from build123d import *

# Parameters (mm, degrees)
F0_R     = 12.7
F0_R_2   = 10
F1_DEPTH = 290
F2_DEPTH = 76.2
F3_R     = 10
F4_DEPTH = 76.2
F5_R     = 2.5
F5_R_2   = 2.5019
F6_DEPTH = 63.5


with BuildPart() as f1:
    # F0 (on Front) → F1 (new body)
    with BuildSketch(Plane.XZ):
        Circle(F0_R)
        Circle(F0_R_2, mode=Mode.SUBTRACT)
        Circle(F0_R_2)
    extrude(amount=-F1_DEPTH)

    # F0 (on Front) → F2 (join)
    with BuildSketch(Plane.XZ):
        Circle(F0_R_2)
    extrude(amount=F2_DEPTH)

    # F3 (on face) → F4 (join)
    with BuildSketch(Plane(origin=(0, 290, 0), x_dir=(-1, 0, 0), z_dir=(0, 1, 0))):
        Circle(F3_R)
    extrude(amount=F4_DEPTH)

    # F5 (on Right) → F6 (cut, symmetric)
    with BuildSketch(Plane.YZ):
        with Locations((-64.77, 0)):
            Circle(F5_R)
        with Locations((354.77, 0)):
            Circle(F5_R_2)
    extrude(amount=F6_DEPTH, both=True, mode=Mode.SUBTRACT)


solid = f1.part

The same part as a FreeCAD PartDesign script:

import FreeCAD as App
import Part
import Sketcher
Q = App.Units.Quantity

doc = App.newDocument("Part")
params = doc.addObject("Spreadsheet::Sheet", "Params")
for row, (alias, value) in enumerate([
    ("sketch1_diameter", "1 in"),
    ("pad1_length", "290 mm"),
    ("pad2_length", "3 in"),
    ("pad3_length", "3 in"),
    ("sketch4_diameter", "0.197 in"),
    ("pocket1_length", "5 in"),
], start=1):
    params.set(f"A{row}", alias)
    params.set(f"B{row}", "=" + value)
    params.setAlias(f"B{row}", alias)

body = doc.addObject("PartDesign::Body", "Body")

sketch1 = body.newObject("Sketcher::SketchObject", "Sketch")
sketch1.AttachmentSupport = (doc.getObject("XZ_Plane"), [""])
sketch1.MapMode = "FlatFace"
sketch1.addGeometry(Part.Circle(App.Vector(0, 0, 0), App.Vector(0, 0, 1), 13), False)
sketch1.addConstraint([
    Sketcher.Constraint("Coincident", 0, 3, -1, 1),
    Sketcher.Constraint("Diameter", 0, Q("1 in")),
])
sketch1.setExpression("Constraints[1]", "Params.sketch1_diameter")
pad1 = body.newObject("PartDesign::Pad", "Pad")
pad1.Profile = sketch1
pad1.setExpression("Length", "Params.pad1_length")
pad1.Reversed = True

sketch2 = body.newObject("Sketcher::SketchObject", "Sketch001")
sketch2.AttachmentSupport = (doc.getObject("XZ_Plane"), [""])
sketch2.MapMode = "FlatFace"
sketch2.addGeometry(Part.Circle(App.Vector(0, 0, 0), App.Vector(0, 0, 1), 10), False)
sketch2.addConstraint([
    Sketcher.Constraint("Coincident", 0, 3, -1, 1),
    Sketcher.Constraint("Diameter", 0, 20.0),
])
pad2 = body.newObject("PartDesign::Pad", "Pad001")
pad2.Profile = sketch2
pad2.setExpression("Length", "Params.pad2_length")

sketch3 = body.newObject("Sketcher::SketchObject", "Sketch002")
sketch3.AttachmentSupport = (doc.getObject("XZ_Plane"), [""])
sketch3.MapMode = "FlatFace"
sketch3.AttachmentOffset = App.Placement(App.Vector(0, 0, -290), App.Rotation())
sketch3.addGeometry(Part.Circle(App.Vector(0, 0, 0), App.Vector(0, 0, 1), 10), False)
sketch3.addConstraint([
    Sketcher.Constraint("Coincident", 0, 3, -1, 1),
    Sketcher.Constraint("Diameter", 0, 20.0),
])
pad3 = body.newObject("PartDesign::Pad", "Pad002")
pad3.Profile = sketch3
pad3.setExpression("Length", "Params.pad3_length")
pad3.Reversed = True

sketch4 = body.newObject("Sketcher::SketchObject", "Sketch003")
sketch4.AttachmentSupport = (doc.getObject("YZ_Plane"), [""])
sketch4.MapMode = "FlatFace"
sketch4.addGeometry([
    Part.Circle(App.Vector(-64.8, 0, 0), App.Vector(0, 0, 1), 2.5),
    Part.Circle(App.Vector(354.8, 0, 0), App.Vector(0, 0, 1), 2.5),
], False)
sketch4.addConstraint([
    Sketcher.Constraint("PointOnObject", 0, 3, -1),
    Sketcher.Constraint("PointOnObject", 1, 3, -1),
    Sketcher.Constraint("Diameter", 1, Q("0.197 in")),
    Sketcher.Constraint("Diameter", 0, 5.0),
    Sketcher.Constraint("DistanceX", 0, 3, -1, 1, Q("2.55 in")),
    Sketcher.Constraint("DistanceX", -1, 1, 1, 3, 354.77),
])
sketch4.setExpression("Constraints[2]", "Params.sketch4_diameter")
pocket1 = body.newObject("PartDesign::Pocket", "Pocket")
pocket1.Profile = sketch4
pocket1.setExpression("Length", "Params.pocket1_length")
pocket1.Midplane = True

doc.recompute()
